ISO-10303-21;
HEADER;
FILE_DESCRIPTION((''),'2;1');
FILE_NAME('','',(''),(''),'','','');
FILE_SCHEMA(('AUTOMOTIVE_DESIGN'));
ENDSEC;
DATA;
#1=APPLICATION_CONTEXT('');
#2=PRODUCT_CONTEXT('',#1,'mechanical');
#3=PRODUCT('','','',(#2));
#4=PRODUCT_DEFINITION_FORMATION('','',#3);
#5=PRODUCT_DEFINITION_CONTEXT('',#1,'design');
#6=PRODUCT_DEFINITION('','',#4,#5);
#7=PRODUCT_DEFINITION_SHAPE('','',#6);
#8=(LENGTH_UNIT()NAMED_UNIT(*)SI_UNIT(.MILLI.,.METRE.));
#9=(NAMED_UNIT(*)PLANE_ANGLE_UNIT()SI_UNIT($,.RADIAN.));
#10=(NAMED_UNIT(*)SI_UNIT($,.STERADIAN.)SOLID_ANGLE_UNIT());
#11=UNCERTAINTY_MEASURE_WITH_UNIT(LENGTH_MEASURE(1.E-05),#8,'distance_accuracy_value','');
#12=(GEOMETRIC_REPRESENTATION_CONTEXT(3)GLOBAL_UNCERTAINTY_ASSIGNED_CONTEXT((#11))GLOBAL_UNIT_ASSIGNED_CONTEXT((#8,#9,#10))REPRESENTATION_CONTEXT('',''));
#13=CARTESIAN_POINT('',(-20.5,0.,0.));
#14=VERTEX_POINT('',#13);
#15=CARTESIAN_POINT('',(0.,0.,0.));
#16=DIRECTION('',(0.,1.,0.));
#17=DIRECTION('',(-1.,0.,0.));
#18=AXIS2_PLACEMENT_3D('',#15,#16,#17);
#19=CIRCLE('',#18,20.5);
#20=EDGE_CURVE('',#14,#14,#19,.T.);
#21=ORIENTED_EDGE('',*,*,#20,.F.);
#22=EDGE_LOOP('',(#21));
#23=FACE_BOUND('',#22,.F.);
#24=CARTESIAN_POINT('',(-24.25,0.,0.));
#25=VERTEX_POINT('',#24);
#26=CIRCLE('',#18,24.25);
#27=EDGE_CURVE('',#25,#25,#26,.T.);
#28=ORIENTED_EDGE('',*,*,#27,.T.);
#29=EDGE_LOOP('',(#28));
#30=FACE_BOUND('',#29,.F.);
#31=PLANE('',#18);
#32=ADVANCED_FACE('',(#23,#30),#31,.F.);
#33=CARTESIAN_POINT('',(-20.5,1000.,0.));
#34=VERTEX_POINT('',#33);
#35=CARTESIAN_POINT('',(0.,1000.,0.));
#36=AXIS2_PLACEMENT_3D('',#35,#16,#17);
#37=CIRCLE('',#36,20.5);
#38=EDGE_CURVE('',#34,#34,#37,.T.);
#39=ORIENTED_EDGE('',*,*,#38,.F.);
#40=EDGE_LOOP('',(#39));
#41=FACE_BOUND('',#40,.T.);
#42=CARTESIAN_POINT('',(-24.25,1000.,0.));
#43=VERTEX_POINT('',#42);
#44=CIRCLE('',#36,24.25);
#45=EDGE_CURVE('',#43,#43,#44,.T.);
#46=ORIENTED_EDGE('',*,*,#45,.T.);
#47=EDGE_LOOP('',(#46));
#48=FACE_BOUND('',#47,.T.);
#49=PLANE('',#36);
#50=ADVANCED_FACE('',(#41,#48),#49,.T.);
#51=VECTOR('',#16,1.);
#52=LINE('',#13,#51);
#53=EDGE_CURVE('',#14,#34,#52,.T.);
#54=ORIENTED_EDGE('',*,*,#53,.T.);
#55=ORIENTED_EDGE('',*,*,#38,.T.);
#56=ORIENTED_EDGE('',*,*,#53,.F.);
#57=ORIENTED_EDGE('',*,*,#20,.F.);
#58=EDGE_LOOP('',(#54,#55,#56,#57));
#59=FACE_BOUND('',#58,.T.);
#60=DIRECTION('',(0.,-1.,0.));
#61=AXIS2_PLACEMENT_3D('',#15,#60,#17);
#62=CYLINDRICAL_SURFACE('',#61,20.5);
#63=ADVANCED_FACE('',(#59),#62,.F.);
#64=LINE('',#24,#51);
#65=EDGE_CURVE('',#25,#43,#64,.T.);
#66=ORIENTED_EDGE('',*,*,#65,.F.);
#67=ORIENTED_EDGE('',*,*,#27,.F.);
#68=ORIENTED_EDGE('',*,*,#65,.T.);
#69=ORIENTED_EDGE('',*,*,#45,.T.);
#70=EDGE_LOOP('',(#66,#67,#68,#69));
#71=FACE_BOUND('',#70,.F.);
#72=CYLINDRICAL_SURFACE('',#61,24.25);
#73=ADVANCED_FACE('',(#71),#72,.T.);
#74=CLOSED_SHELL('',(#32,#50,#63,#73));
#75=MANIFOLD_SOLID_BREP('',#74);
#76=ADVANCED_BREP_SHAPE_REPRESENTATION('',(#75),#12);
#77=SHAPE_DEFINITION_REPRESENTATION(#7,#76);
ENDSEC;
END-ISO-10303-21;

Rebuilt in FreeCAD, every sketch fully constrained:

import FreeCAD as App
import Part
import Sketcher

doc = App.newDocument("Part")
params = doc.addObject("Spreadsheet::Sheet", "Params")
for row, (alias, value) in enumerate([
    ("sketch1_diameter", "41 mm"),
    ("sketch1_diameter2", "48.5 mm"),
    ("pad1_length", "1000 mm"),
], start=1):
    params.set(f"A{row}", alias)
    params.set(f"B{row}", "=" + value)
    params.setAlias(f"B{row}", alias)

body = doc.addObject("PartDesign::Body", "Body")

# Sketch on XZ plane
sketch1 = body.newObject("Sketcher::SketchObject", "Sketch")
sketch1.AttachmentSupport = (doc.getObject("XZ_Plane"), [""])
sketch1.MapMode = "FlatFace"
sketch1.addGeometry(Part.Circle(App.Vector(0, 0, 0), App.Vector(0, 0, 1), 24), False)
sketch1.addGeometry(Part.Circle(App.Vector(0, 0, 0), App.Vector(0, 0, 1), 20), False)
sketch1.addConstraint(Sketcher.Constraint("Coincident", 0, 3, -1, 1))
sketch1.addConstraint(Sketcher.Constraint("Coincident", 1, 3, -1, 1))
sketch1.addConstraint(Sketcher.Constraint("Diameter", 1, 41.0))
sketch1.addConstraint(Sketcher.Constraint("Diameter", 0, 48.5))
sketch1.setExpression("Constraints[2]", "Params.sketch1_diameter")
sketch1.setExpression("Constraints[3]", "Params.sketch1_diameter2")
pad1 = body.newObject("PartDesign::Pad", "Pad")
pad1.Profile = sketch1
pad1.setExpression("Length", "Params.pad1_length")
pad1.Reversed = True

doc.recompute()
